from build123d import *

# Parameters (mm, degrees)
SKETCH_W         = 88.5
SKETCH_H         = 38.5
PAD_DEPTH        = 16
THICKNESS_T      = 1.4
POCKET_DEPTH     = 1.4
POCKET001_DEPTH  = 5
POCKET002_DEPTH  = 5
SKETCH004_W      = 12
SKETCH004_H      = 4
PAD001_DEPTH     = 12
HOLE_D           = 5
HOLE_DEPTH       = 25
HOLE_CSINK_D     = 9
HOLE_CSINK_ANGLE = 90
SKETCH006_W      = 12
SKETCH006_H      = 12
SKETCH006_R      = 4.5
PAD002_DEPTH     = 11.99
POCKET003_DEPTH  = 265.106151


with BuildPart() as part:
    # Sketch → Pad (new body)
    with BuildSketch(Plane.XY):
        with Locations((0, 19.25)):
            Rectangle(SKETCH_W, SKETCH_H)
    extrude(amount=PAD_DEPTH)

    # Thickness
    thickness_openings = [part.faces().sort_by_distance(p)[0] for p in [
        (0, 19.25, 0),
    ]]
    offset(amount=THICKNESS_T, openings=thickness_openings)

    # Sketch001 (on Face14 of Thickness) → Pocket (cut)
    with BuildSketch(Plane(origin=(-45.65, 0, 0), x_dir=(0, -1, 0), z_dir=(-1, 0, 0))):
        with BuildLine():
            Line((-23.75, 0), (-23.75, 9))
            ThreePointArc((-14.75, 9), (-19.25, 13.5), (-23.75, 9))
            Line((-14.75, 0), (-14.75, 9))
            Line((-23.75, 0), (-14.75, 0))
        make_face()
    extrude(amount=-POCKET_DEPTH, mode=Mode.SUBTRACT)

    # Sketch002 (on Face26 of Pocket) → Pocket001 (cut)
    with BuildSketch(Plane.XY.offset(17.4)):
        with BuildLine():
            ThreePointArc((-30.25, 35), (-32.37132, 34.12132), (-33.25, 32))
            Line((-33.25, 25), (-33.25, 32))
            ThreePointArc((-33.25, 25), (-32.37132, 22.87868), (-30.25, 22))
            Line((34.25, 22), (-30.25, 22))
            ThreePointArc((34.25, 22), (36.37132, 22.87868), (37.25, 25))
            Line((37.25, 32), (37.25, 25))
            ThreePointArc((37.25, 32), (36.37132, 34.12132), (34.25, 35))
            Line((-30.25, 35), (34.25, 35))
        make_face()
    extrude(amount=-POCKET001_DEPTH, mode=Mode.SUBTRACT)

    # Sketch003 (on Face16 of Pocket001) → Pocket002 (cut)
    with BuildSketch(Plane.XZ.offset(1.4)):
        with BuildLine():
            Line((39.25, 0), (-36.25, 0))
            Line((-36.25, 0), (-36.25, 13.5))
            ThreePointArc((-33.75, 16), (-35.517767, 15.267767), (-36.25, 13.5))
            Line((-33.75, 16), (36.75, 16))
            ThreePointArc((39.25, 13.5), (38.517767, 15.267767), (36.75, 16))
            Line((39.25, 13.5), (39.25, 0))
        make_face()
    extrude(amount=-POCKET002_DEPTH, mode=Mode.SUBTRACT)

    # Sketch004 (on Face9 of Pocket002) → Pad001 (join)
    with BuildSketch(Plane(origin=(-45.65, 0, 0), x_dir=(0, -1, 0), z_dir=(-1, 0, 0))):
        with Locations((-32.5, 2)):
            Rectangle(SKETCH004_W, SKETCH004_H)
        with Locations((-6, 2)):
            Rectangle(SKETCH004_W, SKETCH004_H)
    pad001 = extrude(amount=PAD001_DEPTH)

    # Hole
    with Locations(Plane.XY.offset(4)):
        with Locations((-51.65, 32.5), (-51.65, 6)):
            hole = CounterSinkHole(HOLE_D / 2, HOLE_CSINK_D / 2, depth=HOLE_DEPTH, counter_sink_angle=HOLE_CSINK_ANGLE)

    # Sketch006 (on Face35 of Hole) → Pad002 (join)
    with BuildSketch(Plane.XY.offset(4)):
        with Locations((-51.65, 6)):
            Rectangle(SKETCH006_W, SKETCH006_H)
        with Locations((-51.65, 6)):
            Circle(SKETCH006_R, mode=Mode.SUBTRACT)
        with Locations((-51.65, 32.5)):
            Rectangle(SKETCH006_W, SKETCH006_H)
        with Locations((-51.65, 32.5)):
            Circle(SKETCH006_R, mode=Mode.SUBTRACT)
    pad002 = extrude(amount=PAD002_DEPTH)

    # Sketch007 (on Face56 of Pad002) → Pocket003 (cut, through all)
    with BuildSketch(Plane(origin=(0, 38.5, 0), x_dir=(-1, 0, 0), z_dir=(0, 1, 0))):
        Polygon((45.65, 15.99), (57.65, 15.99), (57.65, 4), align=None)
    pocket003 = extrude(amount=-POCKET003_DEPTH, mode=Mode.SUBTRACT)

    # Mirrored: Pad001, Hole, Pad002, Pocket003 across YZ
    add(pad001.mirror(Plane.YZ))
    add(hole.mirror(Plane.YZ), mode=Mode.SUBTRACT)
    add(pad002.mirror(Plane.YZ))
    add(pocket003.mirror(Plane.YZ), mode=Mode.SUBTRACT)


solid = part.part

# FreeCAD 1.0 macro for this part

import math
import FreeCAD as App
import Part
import Sketcher
Q = App.Units.Quantity


def faces_at(feature, points):
    """Names of the faces that lie closest to the given points."""
    faces = feature.Shape.Faces
    near = lambda p: min(range(len(faces)), key=lambda i: faces[i].distToShape(Part.Vertex(*p))[0])
    return sorted({f"Face{near(p) + 1}" for p in points})


def add_polygon(sketch, points):
    """Adds a closed chain of lines whose ends are joined by coincident constraints."""
    first, n = sketch.GeometryCount, len(points)
    for a, b in zip(points, points[1:] + points[:1]):
        sketch.addGeometry(Part.LineSegment(App.Vector(*a, 0), App.Vector(*b, 0)), False)
    for i in range(n):
        sketch.addConstraint(Sketcher.Constraint("Coincident", first + i, 2, first + (i + 1) % n, 1))

doc = App.newDocument("Part")
body = doc.addObject("PartDesign::Body", "Body")

sketch1 = body.newObject("Sketcher::SketchObject", "Sketch")
sketch1.AttachmentSupport = (doc.getObject("XY_Plane"), [""])
sketch1.MapMode = "FlatFace"
add_polygon(sketch1, [(-44, 38), (-44, 0), (44, 0), (44, 38)])
sketch1.addConstraint([
    Sketcher.Constraint("Vertical", 0),
    Sketcher.Constraint("Horizontal", 1),
    Sketcher.Constraint("Vertical", 2),
    Sketcher.Constraint("Horizontal", 3),
    Sketcher.Constraint("Symmetric", 0, 2, 1, 2, -1, 1),
    Sketcher.Constraint("DistanceX", 1, 1, 1, 2, Q("88.5 mm")),
    Sketcher.Constraint("DistanceY", 0, 2, 0, 1, Q("38.5 mm")),
])
pad1 = body.newObject("PartDesign::Pad", "Pad")
pad1.Profile = sketch1
pad1.Length = 16
doc.recompute()

thickness = body.newObject("PartDesign::Thickness", "Thickness")
thickness.Base = (pad1, faces_at(pad1, [(0, 19.25, 0)]))
thickness.Value = 1.4
thickness.Reversed = False
thickness.Join = "Arc"

sketch2 = body.newObject("Sketcher::SketchObject", "Sketch001")
sketch2.AttachmentSupport = (doc.getObject("YZ_Plane"), [""])
sketch2.MapMode = "FlatFace"
sketch2.AttachmentOffset = App.Placement(App.Vector(0, 0, -45.65), App.Rotation())
sketch2.addGeometry([
    Part.LineSegment(App.Vector(23.8, 9, 0), App.Vector(23.8, 0, 0)),
    Part.LineSegment(App.Vector(23.8, 0, 0), App.Vector(14.8, 0, 0)),
    Part.LineSegment(App.Vector(14.8, 0, 0), App.Vector(14.8, 9, 0)),
    Part.ArcOfCircle(Part.Circle(App.Vector(19.2, 9, 0), App.Vector(0, 0, 1), 4.5), math.radians(0), math.radians(180)),
], False)
sketch2.addConstraint([
    Sketcher.Constraint("Coincident", 0, 2, 1, 1),
    Sketcher.Constraint("Coincident", 1, 2, 2, 1),
    Sketcher.Constraint("Tangent", 2, 2, 3, 2),
    Sketcher.Constraint("Tangent", 3, 1, 0, 1),
    Sketcher.Constraint("Vertical", 0),
    Sketcher.Constraint("Horizontal", 1),
    Sketcher.Constraint("Vertical", 2),
    Sketcher.Constraint("PointOnObject", 0, 2, -1),
    Sketcher.Constraint("Equal", 1, 0),
    Sketcher.Constraint("Radius", 3, Q("4.5 mm")),
    Sketcher.Constraint("DistanceX", -1, 1, 3, 3, Q("19.25 mm")),
])
pocket1 = body.newObject("PartDesign::Pocket", "Pocket")
pocket1.Profile = sketch2
pocket1.Length = 1.4
pocket1.Reversed = True

sketch3 = body.newObject("Sketcher::SketchObject", "Sketch002")
sketch3.AttachmentSupport = (doc.getObject("XY_Plane"), [""])
sketch3.MapMode = "FlatFace"
sketch3.AttachmentOffset = App.Placement(App.Vector(0, 0, 17.4), App.Rotation())
sketch3.addGeometry([
    Part.ArcOfCircle(Part.Circle(App.Vector(-30.2, 32, 0), App.Vector(0, 0, 1), 3), math.radians(90), math.radians(180)),
    Part.LineSegment(App.Vector(-33.2, 32, 0), App.Vector(-33.2, 25, 0)),
    Part.ArcOfCircle(Part.Circle(App.Vector(-30.2, 25, 0), App.Vector(0, 0, 1), 3), math.radians(-180), math.radians(-90)),
    Part.LineSegment(App.Vector(-30.2, 22, 0), App.Vector(34.2, 22, 0)),
    Part.ArcOfCircle(Part.Circle(App.Vector(34.2, 25, 0), App.Vector(0, 0, 1), 3), math.radians(-90), math.radians(0)),
    Part.LineSegment(App.Vector(37.2, 25, 0), App.Vector(37.2, 32, 0)),
    Part.ArcOfCircle(Part.Circle(App.Vector(34.2, 32, 0), App.Vector(0, 0, 1), 3), math.radians(0), math.radians(90)),
    Part.LineSegment(App.Vector(34.2, 35, 0), App.Vector(-30.2, 35, 0)),
], False)
sketch3.addConstraint([
    Sketcher.Constraint("Tangent", 0, 2, 1, 1),
    Sketcher.Constraint("Tangent", 1, 2, 2, 1),
    Sketcher.Constraint("Tangent", 2, 2, 3, 1),
    Sketcher.Constraint("Tangent", 3, 2, 4, 1),
    Sketcher.Constraint("Tangent", 4, 2, 5, 1),
    Sketcher.Constraint("Tangent", 5, 2, 6, 1),
    Sketcher.Constraint("Tangent", 6, 2, 7, 1),
    Sketcher.Constraint("Tangent", 7, 2, 0, 1),
    Sketcher.Constraint("Vertical", 1),
    Sketcher.Constraint("Horizontal", 3),
    Sketcher.Constraint("Vertical", 5),
    Sketcher.Constraint("Horizontal", 7),
    Sketcher.Constraint("Equal", 0, 2),
    Sketcher.Constraint("Equal", 2, 4),
    Sketcher.Constraint("Equal", 4, 6),
    Sketcher.Constraint("Radius", 0, Q("3.000001 mm")),
    Sketcher.Constraint("DistanceY", 1, 2, 1, 1, Q("7 mm")),
    Sketcher.Constraint("DistanceX", 3, 1, 3, 2, Q("64.5 mm")),
    Sketcher.Constraint("DistanceY", -1, 1, 0, 3, Q("31.999999 mm")),
    Sketcher.Constraint("DistanceX", 0, 3, -1, 1, Q("30.249999 mm")),
])
pocket2 = body.newObject("PartDesign::Pocket", "Pocket001")
pocket2.Profile = sketch3
pocket2.Length = 5

sketch4 = body.newObject("Sketcher::SketchObject", "Sketch003")
sketch4.AttachmentSupport = (doc.getObject("XZ_Plane"), [""])
sketch4.MapMode = "FlatFace"
sketch4.AttachmentOffset = App.Placement(App.Vector(0, 0, 1.4), App.Rotation())
sketch4.addGeometry([
    Part.LineSegment(App.Vector(-36.2, 0, 0), App.Vector(39.2, 0, 0)),
    Part.LineSegment(App.Vector(39.2, 0, 0), App.Vector(39.2, 13.5, 0)),
    Part.ArcOfCircle(Part.Circle(App.Vector(36.8, 13.5, 0), App.Vector(0, 0, 1), 2.5), math.radians(0), math.radians(90)),
    Part.LineSegment(App.Vector(36.8, 16, 0), App.Vector(-33.8, 16, 0)),
    Part.ArcOfCircle(Part.Circle(App.Vector(-33.8, 13.5, 0), App.Vector(0, 0, 1), 2.5), math.radians(90), math.radians(180)),
    Part.LineSegment(App.Vector(-36.2, 13.5, 0), App.Vector(-36.2, 0, 0)),
], False)
sketch4.addConstraint([
    Sketcher.Constraint("Coincident", 0, 2, 1, 1),
    Sketcher.Constraint("Tangent", 1, 2, 2, 1),
    Sketcher.Constraint("Tangent", 2, 2, 3, 1),
    Sketcher.Constraint("Tangent", 3, 2, 4, 1),
    Sketcher.Constraint("Tangent", 4, 2, 5, 1),
    Sketcher.Constraint("Coincident", 5, 2, 0, 1),
    Sketcher.Constraint("Horizontal", 0),
    Sketcher.Constraint("Vertical", 1),
    Sketcher.Constraint("Horizontal", 3),
    Sketcher.Constraint("Vertical", 5),
    Sketcher.Constraint("Equal", 2, 4),
    Sketcher.Constraint("PointOnObject", 0, 2, -1),
    Sketcher.Constraint("Radius", 2, Q("2.5 mm")),
    Sketcher.Constraint("DistanceX", 0, 1, 0, 2, Q("75.5 mm")),
    Sketcher.Constraint("DistanceY", 1, 1, 1, 2, Q("13.5 mm")),
    Sketcher.Constraint("DistanceX", -1, 1, 2, 3, Q("36.75 mm")),
])
pocket3 = body.newObject("PartDesign::Pocket", "Pocket002")
pocket3.Profile = sketch4
pocket3.Length = 5

sketch5 = body.newObject("Sketcher::SketchObject", "Sketch004")
sketch5.AttachmentSupport = (doc.getObject("YZ_Plane"), [""])
sketch5.MapMode = "FlatFace"
sketch5.AttachmentOffset = App.Placement(App.Vector(0, 0, -45.65), App.Rotation())
add_polygon(sketch5, [(38.5, 4), (38.5, 0), (26.5, 0), (26.5, 4)])
add_polygon(sketch5, [(12, 4), (12, 0), (0, 0), (0, 4)])
sketch5.addConstraint([
    Sketcher.Constraint("Vertical", 0),
    Sketcher.Constraint("Horizontal", 1),
    Sketcher.Constraint("Vertical", 2),
    Sketcher.Constraint("Horizontal", 3),
    Sketcher.Constraint("Vertical", 4),
    Sketcher.Constraint("Horizontal", 5),
    Sketcher.Constraint("Vertical", 6),
    Sketcher.Constraint("Horizontal", 7),
    Sketcher.Constraint("Coincident", 5, 2, -1, 1),
    Sketcher.Constraint("PointOnObject", 0, 2, -1),
    Sketcher.Constraint("Horizontal", 3, 2, 6, 2),
    Sketcher.Constraint("Equal", 3, 5),
    Sketcher.Constraint("DistanceX", 1, 2, 1, 1, Q("12 mm")),
    Sketcher.Constraint("DistanceY", 0, 2, 0, 1, Q("4 mm")),
    Sketcher.Constraint("DistanceX", -1, 1, 0, 2, Q("38.5 mm")),
])
pad2 = body.newObject("PartDesign::Pad", "Pad001")
pad2.Profile = sketch5
pad2.Length = 12
pad2.Reversed = True

sketch6 = body.newObject("Sketcher::SketchObject", "Sketch005")
sketch6.AttachmentSupport = (doc.getObject("XY_Plane"), [""])
sketch6.MapMode = "FlatFace"
sketch6.AttachmentOffset = App.Placement(App.Vector(0, 0, 4), App.Rotation())
sketch6.addGeometry([
    Part.Circle(App.Vector(-51.6, 32.5, 0), App.Vector(0, 0, 1), 2.5),
    Part.Circle(App.Vector(-51.6, 6, 0), App.Vector(0, 0, 1), 2.5),
], False)
sketch6.addConstraint([
    Sketcher.Constraint("Equal", 0, 1),
    Sketcher.Constraint("Vertical", 0, 3, 1, 3),
    Sketcher.Constraint("Diameter", 0, Q("5 mm")),
    Sketcher.Constraint("DistanceY", -1, 1, 1, 3, Q("6 mm")),
    Sketcher.Constraint("DistanceY", -1, 1, 0, 3, Q("32.5 mm")),
    Sketcher.Constraint("DistanceX", 0, 3, -1, 1, Q("51.65 mm")),
])
doc.recompute()
hole = body.newObject("PartDesign::Hole", "Hole")
hole.Profile = sketch6
hole.ThreadType = "None"
hole.Diameter = 5
hole.DepthType = "Dimension"
hole.Depth = 25
hole.DrillPoint = "Flat"
hole.HoleCutType = "Countersink"
hole.HoleCutDiameter = 9
hole.HoleCutCountersinkAngle = 90

sketch7 = body.newObject("Sketcher::SketchObject", "Sketch006")
sketch7.AttachmentSupport = (doc.getObject("XY_Plane"), [""])
sketch7.MapMode = "FlatFace"
sketch7.AttachmentOffset = App.Placement(App.Vector(0, 0, 4), App.Rotation())
add_polygon(sketch7, [(-57.6, 12), (-57.6, 0), (-45.6, 0), (-45.6, 12)])
sketch7.addGeometry(Part.Circle(App.Vector(-51.6, 6, 0), App.Vector(0, 0, 1), 4.5), False)
add_polygon(sketch7, [(-57.6, 38.5), (-57.6, 26.5), (-45.6, 26.5), (-45.6, 38.5)])
sketch7.addGeometry(Part.Circle(App.Vector(-51.6, 32.5, 0), App.Vector(0, 0, 1), 4.5), False)
sketch7.addConstraint([
    Sketcher.Constraint("Vertical", 0),
    Sketcher.Constraint("Horizontal", 1),
    Sketcher.Constraint("Vertical", 2),
    Sketcher.Constraint("Horizontal", 3),
    Sketcher.Constraint("Vertical", 5),
    Sketcher.Constraint("Horizontal", 6),
    Sketcher.Constraint("Vertical", 7),
    Sketcher.Constraint("Horizontal", 8),
    Sketcher.Constraint("Equal", 4, 9),
    Sketcher.Constraint("PointOnObject", 0, 2, -1),
    Sketcher.Constraint("Vertical", 4, 3, 9, 3),
    Sketcher.Constraint("Vertical", 3, 2, 5, 2),
    Sketcher.Constraint("Vertical", 2, 2, 6, 2),
    Sketcher.Constraint("Equal", 8, 0),
    Sketcher.Constraint("Equal", 2, 5),
    Sketcher.Constraint("Diameter", 4, Q("9 mm")),
    Sketcher.Constraint("DistanceX", 1, 1, 1, 2, Q("12 mm")),
    Sketcher.Constraint("DistanceY", -1, 1, 4, 3, Q("6 mm")),
    Sketcher.Constraint("DistanceX", 0, 2, 4, 3, Q("6 mm")),
    Sketcher.Constraint("DistanceY", 5, 2, 9, 3, Q("6 mm")),
    Sketcher.Constraint("DistanceY", -1, 1, 9, 3, Q("32.5 mm")),
    Sketcher.Constraint("DistanceX", 4, 3, -1, 1, Q("51.65 mm")),
])
pad3 = body.newObject("PartDesign::Pad", "Pad002")
pad3.Profile = sketch7
pad3.Length = 11.99

sketch8 = body.newObject("Sketcher::SketchObject", "Sketch007")
sketch8.AttachmentSupport = (doc.getObject("XZ_Plane"), [""])
sketch8.MapMode = "FlatFace"
sketch8.AttachmentOffset = App.Placement(App.Vector(0, 0, -38.5), App.Rotation())
add_polygon(sketch8, [(-58, 16), (-46, 16), (-58, 4)])
sketch8.addConstraint([
    Sketcher.Constraint("Horizontal", 0),
    Sketcher.Constraint("Vertical", 2),
    Sketcher.Constraint("DistanceX", 0, 1, 0, 2, Q("12 mm")),
    Sketcher.Constraint("DistanceY", -1, 1, 1, 2, Q("4 mm")),
    Sketcher.Constraint("DistanceY", 2, 1, 2, 2, Q("11.99 mm")),
    Sketcher.Constraint("DistanceX", 0, 2, -1, 1, Q("45.65 mm")),
])
pocket4 = body.newObject("PartDesign::Pocket", "Pocket003")
pocket4.Profile = sketch8
pocket4.Type = "ThroughAll"
pocket4.Reversed = True
doc.recompute()

mirrored = body.newObject("PartDesign::Mirrored", "Mirrored")
mirrored.Originals = [pad2, hole, pad3, pocket4]
mirrored.MirrorPlane = (doc.getObject("YZ_Plane"), [""])
body.Tip = mirrored

doc.recompute()
